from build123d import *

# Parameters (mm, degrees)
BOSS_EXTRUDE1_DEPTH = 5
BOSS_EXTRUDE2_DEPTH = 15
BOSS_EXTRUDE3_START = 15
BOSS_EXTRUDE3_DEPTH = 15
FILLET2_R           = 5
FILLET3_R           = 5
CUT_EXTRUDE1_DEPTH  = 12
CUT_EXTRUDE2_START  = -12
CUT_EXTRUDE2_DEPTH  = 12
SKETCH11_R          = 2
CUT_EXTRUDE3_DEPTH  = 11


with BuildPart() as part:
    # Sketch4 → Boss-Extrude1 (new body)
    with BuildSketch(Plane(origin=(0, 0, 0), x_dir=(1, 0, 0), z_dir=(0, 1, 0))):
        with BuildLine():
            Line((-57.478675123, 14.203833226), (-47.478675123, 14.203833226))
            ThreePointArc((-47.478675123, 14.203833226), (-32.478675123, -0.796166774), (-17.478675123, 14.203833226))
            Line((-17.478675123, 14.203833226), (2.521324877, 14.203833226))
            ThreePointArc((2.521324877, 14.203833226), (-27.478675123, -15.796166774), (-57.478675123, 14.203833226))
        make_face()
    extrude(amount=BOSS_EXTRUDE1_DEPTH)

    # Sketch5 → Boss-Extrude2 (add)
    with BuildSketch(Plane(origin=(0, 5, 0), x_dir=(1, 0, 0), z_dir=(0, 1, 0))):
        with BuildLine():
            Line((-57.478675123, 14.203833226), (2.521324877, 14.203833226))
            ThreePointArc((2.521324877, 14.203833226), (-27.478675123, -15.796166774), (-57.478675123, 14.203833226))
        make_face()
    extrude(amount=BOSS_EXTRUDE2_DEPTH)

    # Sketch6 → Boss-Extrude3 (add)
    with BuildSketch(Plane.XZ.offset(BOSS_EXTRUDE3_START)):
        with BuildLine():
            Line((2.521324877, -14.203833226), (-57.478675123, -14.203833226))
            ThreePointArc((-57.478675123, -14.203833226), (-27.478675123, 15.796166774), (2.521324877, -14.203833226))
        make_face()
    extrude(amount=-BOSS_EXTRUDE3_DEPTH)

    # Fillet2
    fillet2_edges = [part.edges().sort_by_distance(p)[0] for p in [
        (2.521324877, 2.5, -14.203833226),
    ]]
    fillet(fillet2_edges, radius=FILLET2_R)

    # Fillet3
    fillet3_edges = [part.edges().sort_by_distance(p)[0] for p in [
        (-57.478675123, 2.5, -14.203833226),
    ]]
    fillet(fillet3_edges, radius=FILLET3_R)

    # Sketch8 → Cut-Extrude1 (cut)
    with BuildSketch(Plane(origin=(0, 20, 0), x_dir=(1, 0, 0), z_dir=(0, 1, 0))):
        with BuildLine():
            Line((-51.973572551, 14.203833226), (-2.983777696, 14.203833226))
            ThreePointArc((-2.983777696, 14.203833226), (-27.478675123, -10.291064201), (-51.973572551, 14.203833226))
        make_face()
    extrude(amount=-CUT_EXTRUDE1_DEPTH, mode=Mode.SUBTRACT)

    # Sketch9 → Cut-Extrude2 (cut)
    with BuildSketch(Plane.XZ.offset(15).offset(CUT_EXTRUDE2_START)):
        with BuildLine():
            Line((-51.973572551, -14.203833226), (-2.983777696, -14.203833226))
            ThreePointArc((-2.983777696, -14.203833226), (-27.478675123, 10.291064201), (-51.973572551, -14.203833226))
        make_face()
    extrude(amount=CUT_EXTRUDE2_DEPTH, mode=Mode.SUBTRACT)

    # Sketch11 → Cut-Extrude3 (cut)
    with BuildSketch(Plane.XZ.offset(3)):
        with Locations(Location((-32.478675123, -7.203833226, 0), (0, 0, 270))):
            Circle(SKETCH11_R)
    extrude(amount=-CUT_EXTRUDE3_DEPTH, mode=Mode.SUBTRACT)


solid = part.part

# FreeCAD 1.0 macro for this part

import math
import FreeCAD as App
import Part
import Sketcher
from FreeCAD import Vector


def edges_at(feature, points):
    """Names of the edges that pass closest to the given points."""
    edges = feature.Shape.Edges
    near = lambda p: min(range(len(edges)), key=lambda i: edges[i].distToShape(Part.Vertex(*p))[0])
    return sorted({f"Edge{near(p) + 1}" for p in points})

doc = App.newDocument("Part")
body = doc.addObject("PartDesign::Body", "Body")

sketch1 = body.newObject("Sketcher::SketchObject", "Sketch")
sketch1.AttachmentSupport = (doc.getObject("XZ_Plane"), [""])
sketch1.MapMode = "FlatFace"
sketch1.addGeometry([
    Part.LineSegment(Vector(-47.478675, -14.203833, 0), Vector(-57.478675, -14.203833, 0)),
    Part.ArcOfCircle(Part.Circle(Vector(-27.478675, -14.203833, 0), Vector(0, 0, 1), 30), math.radians(0), math.radians(180)),
    Part.LineSegment(Vector(2.521325, -14.203833, 0), Vector(-17.478675, -14.203833, 0)),
    Part.ArcOfCircle(Part.Circle(Vector(-32.478675, -14.203833, 0), Vector(0, 0, 1), 15), math.radians(0), math.radians(180)),
], False)
sketch1.addConstraint([
    Sketcher.Constraint("Coincident", 0, 2, 1, 2),
    Sketcher.Constraint("Coincident", 1, 1, 2, 1),
    Sketcher.Constraint("Coincident", 2, 2, 3, 1),
    Sketcher.Constraint("Coincident", 3, 2, 0, 1),
    Sketcher.Constraint("Horizontal", 0),
    Sketcher.Constraint("Horizontal", 2),
    Sketcher.Constraint("Horizontal", 1, 3, 3, 3),
    Sketcher.Constraint("Horizontal", 3, 3, 0, 2),
    Sketcher.Constraint("Horizontal", 0, 2, 1, 1),
    Sketcher.Constraint("Radius", 1, 30.0),
    Sketcher.Constraint("Radius", 3, 15.0),
    Sketcher.Constraint("DistanceX", 0, 2, 0, 1, 10.0),
    Sketcher.Constraint("DistanceX", 1, 3, -1, 1, 27.478675),
    Sketcher.Constraint("DistanceY", 1, 3, -1, 1, 14.203833),
])
pad1 = body.newObject("PartDesign::Pad", "Pad")
pad1.Profile = sketch1
pad1.Length = 5
pad1.Reversed = True

sketch2 = body.newObject("Sketcher::SketchObject", "Sketch001")
sketch2.AttachmentSupport = (doc.getObject("XZ_Plane"), [""])
sketch2.MapMode = "FlatFace"
sketch2.AttachmentOffset = App.Placement(Vector(0, 0, -5), App.Rotation())
sketch2.addGeometry([
    Part.LineSegment(Vector(2.521325, -14.203833, 0), Vector(-57.478675, -14.203833, 0)),
    Part.ArcOfCircle(Part.Circle(Vector(-27.478675, -14.203833, 0), Vector(0, 0, 1), 30), math.radians(0), math.radians(180)),
], False)
sketch2.addConstraint([
    Sketcher.Constraint("Coincident", 0, 1, 1, 1),
    Sketcher.Constraint("Coincident", 1, 2, 0, 2),
    Sketcher.Constraint("Horizontal", 0),
    Sketcher.Constraint("Horizontal", 1, 3, 0, 1),
    Sketcher.Constraint("Radius", 1, 30.0),
    Sketcher.Constraint("DistanceX", 1, 3, -1, 1, 27.478675),
    Sketcher.Constraint("DistanceY", 1, 3, -1, 1, 14.203833),
])
pad2 = body.newObject("PartDesign::Pad", "Pad001")
pad2.Profile = sketch2
pad2.Length = 15
pad2.Reversed = True

sketch3 = body.newObject("Sketcher::SketchObject", "Sketch002")
sketch3.AttachmentSupport = (doc.getObject("XZ_Plane"), [""])
sketch3.MapMode = "FlatFace"
sketch3.AttachmentOffset = App.Placement(Vector(0, 0, 15), App.Rotation())
sketch3.addGeometry([
    Part.LineSegment(Vector(-57.478675, -14.203833, 0), Vector(2.521325, -14.203833, 0)),
    Part.ArcOfCircle(Part.Circle(Vector(-27.478675, -14.203833, 0), Vector(0, 0, 1), 30), math.radians(0), math.radians(180)),
], False)
sketch3.addConstraint([
    Sketcher.Constraint("Coincident", 0, 1, 1, 2),
    Sketcher.Constraint("Coincident", 1, 1, 0, 2),
    Sketcher.Constraint("Horizontal", 0),
    Sketcher.Constraint("Horizontal", 1, 3, 0, 1),
    Sketcher.Constraint("Radius", 1, 30.0),
    Sketcher.Constraint("DistanceX", 1, 3, -1, 1, 27.478675),
    Sketcher.Constraint("DistanceY", 1, 3, -1, 1, 14.203833),
])
pad3 = body.newObject("PartDesign::Pad", "Pad002")
pad3.Profile = sketch3
pad3.Length = 15
pad3.Reversed = True
doc.recompute()

fillet = body.newObject("PartDesign::Fillet", "Fillet")
fillet.Base = (pad3, edges_at(pad3, [(2.521, 2.5, -14.204)]))
fillet.Radius = 5
doc.recompute()

fillet2 = body.newObject("PartDesign::Fillet", "Fillet001")
fillet2.Base = (fillet, edges_at(fillet, [(-57.479, 2.5, -14.204)]))
fillet2.Radius = 5

sketch4 = body.newObject("Sketcher::SketchObject", "Sketch003")
sketch4.AttachmentSupport = (doc.getObject("XZ_Plane"), [""])
sketch4.MapMode = "FlatFace"
sketch4.AttachmentOffset = App.Placement(Vector(0, 0, -20), App.Rotation())
sketch4.addGeometry([
    Part.LineSegment(Vector(-2.983778, -14.203833, 0), Vector(-51.973573, -14.203833, 0)),
    Part.ArcOfCircle(Part.Circle(Vector(-27.478675, -14.203833, 0), Vector(0, 0, 1), 24.494897), math.radians(0), math.radians(180)),
], False)
sketch4.addConstraint([
    Sketcher.Constraint("Coincident", 0, 1, 1, 1),
    Sketcher.Constraint("Coincident", 1, 2, 0, 2),
    Sketcher.Constraint("Horizontal", 0),
    Sketcher.Constraint("Horizontal", 1, 3, 0, 1),
    Sketcher.Constraint("Radius", 1, 24.494897),
    Sketcher.Constraint("DistanceX", 1, 3, -1, 1, 27.478675),
    Sketcher.Constraint("DistanceY", 1, 3, -1, 1, 14.203833),
])
pocket1 = body.newObject("PartDesign::Pocket", "Pocket")
pocket1.Profile = sketch4
pocket1.Length = 12
pocket1.Reversed = True

sketch5 = body.newObject("Sketcher::SketchObject", "Sketch004")
sketch5.AttachmentSupport = (doc.getObject("XZ_Plane"), [""])
sketch5.MapMode = "FlatFace"
sketch5.AttachmentOffset = App.Placement(Vector(0, 0, 3), App.Rotation())
sketch5.addGeometry([
    Part.LineSegment(Vector(-51.973573, -14.203833, 0), Vector(-2.983778, -14.203833, 0)),
    Part.ArcOfCircle(Part.Circle(Vector(-27.478675, -14.203833, 0), Vector(0, 0, 1), 24.494897), math.radians(0), math.radians(180)),
], False)
sketch5.addConstraint([
    Sketcher.Constraint("Coincident", 0, 1, 1, 2),
    Sketcher.Constraint("Coincident", 1, 1, 0, 2),
    Sketcher.Constraint("Horizontal", 0),
    Sketcher.Constraint("Horizontal", 1, 3, 0, 1),
    Sketcher.Constraint("Radius", 1, 24.494897),
    Sketcher.Constraint("DistanceX", 1, 3, -1, 1, 27.478675),
    Sketcher.Constraint("DistanceY", 1, 3, -1, 1, 14.203833),
])
pocket2 = body.newObject("PartDesign::Pocket", "Pocket001")
pocket2.Profile = sketch5
pocket2.Length = 12
pocket2.Reversed = True

sketch6 = body.newObject("Sketcher::SketchObject", "Sketch005")
sketch6.AttachmentSupport = (doc.getObject("XZ_Plane"), [""])
sketch6.MapMode = "FlatFace"
sketch6.AttachmentOffset = App.Placement(Vector(0, 0, 3), App.Rotation())
sketch6.addGeometry(Part.Circle(Vector(-32.478675, -7.203833, 0), Vector(0, 0, 1), 2), False)
sketch6.addConstraint([
    Sketcher.Constraint("Diameter", 0, 4.0),
    Sketcher.Constraint("DistanceX", 0, 3, -1, 1, 32.478675),
    Sketcher.Constraint("DistanceY", 0, 3, -1, 1, 7.203833),
])
pocket3 = body.newObject("PartDesign::Pocket", "Pocket002")
pocket3.Profile = sketch6
pocket3.Length = 11

doc.recompute()
